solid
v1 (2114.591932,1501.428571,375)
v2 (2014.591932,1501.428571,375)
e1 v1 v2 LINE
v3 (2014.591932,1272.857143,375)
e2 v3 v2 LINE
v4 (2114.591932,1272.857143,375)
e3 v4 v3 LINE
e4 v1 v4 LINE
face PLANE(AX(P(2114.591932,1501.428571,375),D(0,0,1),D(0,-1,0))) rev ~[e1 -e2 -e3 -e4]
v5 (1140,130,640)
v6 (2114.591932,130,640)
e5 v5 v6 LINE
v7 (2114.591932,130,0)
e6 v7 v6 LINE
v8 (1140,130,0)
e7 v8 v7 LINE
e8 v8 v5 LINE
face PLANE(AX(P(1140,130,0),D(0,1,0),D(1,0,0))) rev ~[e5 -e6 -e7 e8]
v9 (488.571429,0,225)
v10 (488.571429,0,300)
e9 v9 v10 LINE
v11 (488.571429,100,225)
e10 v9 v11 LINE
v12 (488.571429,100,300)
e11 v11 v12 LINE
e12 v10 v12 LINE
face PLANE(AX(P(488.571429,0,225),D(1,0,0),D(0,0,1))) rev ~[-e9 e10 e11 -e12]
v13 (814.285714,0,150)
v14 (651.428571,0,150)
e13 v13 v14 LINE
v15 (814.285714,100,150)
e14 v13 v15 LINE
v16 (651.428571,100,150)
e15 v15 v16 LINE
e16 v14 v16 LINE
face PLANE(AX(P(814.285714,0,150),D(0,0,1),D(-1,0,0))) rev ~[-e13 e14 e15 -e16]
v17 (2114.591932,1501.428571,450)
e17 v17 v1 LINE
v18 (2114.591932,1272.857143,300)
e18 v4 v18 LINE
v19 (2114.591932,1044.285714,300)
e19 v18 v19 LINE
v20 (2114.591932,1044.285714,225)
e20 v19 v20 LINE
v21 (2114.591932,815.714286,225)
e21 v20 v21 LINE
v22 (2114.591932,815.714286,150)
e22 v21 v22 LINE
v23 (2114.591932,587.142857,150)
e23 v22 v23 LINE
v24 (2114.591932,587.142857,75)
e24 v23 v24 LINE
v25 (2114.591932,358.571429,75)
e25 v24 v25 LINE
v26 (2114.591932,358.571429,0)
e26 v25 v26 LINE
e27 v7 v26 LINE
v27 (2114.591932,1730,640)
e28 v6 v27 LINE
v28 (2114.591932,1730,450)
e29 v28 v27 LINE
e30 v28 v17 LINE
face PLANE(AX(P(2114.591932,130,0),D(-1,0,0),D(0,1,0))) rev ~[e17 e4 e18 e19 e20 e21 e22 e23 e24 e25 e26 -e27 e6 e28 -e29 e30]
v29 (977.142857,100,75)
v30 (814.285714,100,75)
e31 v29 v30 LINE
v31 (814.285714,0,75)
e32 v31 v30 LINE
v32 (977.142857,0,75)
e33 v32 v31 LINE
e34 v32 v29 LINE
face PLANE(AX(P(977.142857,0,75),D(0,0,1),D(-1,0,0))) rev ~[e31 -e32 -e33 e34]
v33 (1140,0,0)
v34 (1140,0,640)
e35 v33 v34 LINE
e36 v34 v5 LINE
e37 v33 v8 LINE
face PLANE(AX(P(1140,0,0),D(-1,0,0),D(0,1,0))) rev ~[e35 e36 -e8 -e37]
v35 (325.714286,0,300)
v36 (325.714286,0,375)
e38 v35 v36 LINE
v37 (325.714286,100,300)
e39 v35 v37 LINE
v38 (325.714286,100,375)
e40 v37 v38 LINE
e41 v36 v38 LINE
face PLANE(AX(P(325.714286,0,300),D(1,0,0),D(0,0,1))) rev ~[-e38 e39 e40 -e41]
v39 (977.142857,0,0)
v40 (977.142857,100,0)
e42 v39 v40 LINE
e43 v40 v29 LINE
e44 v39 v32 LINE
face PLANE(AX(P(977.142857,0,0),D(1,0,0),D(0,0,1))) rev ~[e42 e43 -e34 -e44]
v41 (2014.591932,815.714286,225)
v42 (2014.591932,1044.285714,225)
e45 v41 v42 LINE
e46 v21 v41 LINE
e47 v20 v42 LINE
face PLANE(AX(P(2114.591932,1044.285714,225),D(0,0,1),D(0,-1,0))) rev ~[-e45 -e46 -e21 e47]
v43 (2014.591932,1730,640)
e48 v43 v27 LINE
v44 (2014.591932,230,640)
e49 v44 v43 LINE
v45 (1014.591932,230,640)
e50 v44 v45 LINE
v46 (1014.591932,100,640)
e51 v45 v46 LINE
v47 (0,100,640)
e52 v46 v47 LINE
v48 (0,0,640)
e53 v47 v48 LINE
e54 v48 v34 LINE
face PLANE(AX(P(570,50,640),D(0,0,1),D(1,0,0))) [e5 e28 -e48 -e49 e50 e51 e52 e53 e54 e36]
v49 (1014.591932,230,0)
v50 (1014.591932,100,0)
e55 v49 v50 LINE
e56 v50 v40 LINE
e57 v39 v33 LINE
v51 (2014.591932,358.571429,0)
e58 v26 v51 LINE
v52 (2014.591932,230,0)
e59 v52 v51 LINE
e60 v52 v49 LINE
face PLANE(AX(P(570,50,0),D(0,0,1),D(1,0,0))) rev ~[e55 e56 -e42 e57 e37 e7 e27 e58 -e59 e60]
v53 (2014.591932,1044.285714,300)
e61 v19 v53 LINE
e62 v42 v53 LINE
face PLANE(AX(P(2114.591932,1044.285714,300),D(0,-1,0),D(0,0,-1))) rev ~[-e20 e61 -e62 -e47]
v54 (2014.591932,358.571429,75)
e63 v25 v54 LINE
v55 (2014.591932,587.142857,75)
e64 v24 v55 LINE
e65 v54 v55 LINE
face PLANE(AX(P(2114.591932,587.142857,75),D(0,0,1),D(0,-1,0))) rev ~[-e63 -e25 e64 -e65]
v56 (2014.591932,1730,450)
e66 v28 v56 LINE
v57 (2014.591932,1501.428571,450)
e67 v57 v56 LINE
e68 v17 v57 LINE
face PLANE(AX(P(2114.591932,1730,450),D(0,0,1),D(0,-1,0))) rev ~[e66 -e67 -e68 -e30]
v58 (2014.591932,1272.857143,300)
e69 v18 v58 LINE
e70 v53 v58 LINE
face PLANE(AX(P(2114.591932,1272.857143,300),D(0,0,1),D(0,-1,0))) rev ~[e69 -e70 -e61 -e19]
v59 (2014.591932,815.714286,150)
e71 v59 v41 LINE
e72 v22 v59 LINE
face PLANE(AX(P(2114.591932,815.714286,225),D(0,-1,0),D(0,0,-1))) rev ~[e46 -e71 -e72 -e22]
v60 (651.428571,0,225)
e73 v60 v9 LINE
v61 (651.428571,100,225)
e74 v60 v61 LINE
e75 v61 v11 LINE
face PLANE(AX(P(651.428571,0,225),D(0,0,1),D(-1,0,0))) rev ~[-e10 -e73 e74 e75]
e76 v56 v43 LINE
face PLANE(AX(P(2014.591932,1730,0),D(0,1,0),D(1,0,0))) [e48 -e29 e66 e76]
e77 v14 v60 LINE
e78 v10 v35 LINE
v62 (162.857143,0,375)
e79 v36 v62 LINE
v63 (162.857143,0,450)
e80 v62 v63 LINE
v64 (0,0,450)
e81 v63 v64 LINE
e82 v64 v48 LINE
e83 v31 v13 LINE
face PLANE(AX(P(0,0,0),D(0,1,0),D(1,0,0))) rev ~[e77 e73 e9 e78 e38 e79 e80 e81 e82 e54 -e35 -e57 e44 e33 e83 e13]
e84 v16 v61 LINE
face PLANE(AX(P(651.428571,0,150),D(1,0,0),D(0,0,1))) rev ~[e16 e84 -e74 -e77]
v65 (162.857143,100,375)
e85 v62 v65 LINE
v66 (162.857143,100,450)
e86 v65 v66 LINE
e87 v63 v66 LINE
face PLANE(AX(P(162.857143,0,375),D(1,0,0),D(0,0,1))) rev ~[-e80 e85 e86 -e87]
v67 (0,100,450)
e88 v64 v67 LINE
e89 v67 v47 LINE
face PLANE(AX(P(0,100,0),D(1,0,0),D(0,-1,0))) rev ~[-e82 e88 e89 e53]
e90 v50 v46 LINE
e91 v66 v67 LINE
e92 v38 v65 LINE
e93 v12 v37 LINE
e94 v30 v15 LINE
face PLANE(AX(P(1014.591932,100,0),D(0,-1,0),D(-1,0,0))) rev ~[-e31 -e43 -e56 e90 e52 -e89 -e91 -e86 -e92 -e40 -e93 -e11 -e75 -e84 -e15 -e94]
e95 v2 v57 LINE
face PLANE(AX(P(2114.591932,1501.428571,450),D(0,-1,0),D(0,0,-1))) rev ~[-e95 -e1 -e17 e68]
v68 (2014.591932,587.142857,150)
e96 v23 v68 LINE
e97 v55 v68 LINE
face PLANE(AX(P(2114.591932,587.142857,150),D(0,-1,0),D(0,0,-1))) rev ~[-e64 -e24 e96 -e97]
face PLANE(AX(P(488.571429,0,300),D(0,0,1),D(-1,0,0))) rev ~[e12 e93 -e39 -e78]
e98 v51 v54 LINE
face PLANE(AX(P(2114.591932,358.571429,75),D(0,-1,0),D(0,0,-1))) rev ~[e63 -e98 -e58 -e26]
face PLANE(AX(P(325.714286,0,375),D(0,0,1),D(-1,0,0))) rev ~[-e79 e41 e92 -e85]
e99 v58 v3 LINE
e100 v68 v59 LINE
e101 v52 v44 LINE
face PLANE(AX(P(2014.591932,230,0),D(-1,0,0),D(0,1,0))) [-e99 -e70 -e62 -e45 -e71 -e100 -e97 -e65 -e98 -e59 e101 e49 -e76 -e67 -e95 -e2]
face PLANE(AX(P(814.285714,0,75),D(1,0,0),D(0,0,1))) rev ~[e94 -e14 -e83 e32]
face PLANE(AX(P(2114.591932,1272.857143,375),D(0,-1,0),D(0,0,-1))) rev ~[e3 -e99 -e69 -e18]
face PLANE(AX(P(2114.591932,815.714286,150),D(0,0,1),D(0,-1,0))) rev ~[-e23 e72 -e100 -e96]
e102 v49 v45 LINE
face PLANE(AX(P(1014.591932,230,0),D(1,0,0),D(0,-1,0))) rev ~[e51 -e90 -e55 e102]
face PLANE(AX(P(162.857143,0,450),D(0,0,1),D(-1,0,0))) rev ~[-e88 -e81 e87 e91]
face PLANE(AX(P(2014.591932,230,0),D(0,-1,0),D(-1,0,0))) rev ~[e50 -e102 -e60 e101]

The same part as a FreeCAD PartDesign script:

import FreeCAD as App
import Part
import Sketcher
Q = App.Units.Quantity

doc = App.newDocument("Part")
body = doc.addObject("PartDesign::Body", "Body")

sketch1 = body.newObject("Sketcher::SketchObject", "Sketch")
sketch1.AttachmentSupport = (doc.getObject("XY_Plane"), [""])
sketch1.MapMode = "FlatFace"
sketch1.addGeometry(Part.LineSegment(App.Vector(0, 100, 0), App.Vector(0, 0, 0)), False)
sketch1.addGeometry(Part.LineSegment(App.Vector(0, 0, 0), App.Vector(1140, 0, 0)), False)
sketch1.addGeometry(Part.LineSegment(App.Vector(1140, 0, 0), App.Vector(1140, 130, 0)), False)
sketch1.addGeometry(Part.LineSegment(App.Vector(1140, 130, 0), App.Vector(2114.591932, 130, 0)), False)
sketch1.addGeometry(Part.LineSegment(App.Vector(2114.591932, 130, 0), App.Vector(2114.591932, 1730, 0)), False)
sketch1.addGeometry(Part.LineSegment(App.Vector(2114.591932, 1730, 0), App.Vector(2014.591932, 1730, 0)), False)
sketch1.addGeometry(Part.LineSegment(App.Vector(2014.591932, 1730, 0), App.Vector(2014.591932, 230, 0)), False)
sketch1.addGeometry(Part.LineSegment(App.Vector(2014.591932, 230, 0), App.Vector(1014.591932, 230, 0)), False)
sketch1.addGeometry(Part.LineSegment(App.Vector(1014.591932, 230, 0), App.Vector(1014.591932, 100, 0)), False)
sketch1.addGeometry(Part.LineSegment(App.Vector(1014.591932, 100, 0), App.Vector(0, 100, 0)), False)
sketch1.addConstraint(Sketcher.Constraint("Coincident", 0, 2, 1, 1))
sketch1.addConstraint(Sketcher.Constraint("Coincident", 1, 2, 2, 1))
sketch1.addConstraint(Sketcher.Constraint("Coincident", 2, 2, 3, 1))
sketch1.addConstraint(Sketcher.Constraint("Coincident", 3, 2, 4, 1))
sketch1.addConstraint(Sketcher.Constraint("Coincident", 4, 2, 5, 1))
sketch1.addConstraint(Sketcher.Constraint("Coincident", 5, 2, 6, 1))
sketch1.addConstraint(Sketcher.Constraint("Coincident", 6, 2, 7, 1))
sketch1.addConstraint(Sketcher.Constraint("Coincident", 7, 2, 8, 1))
sketch1.addConstraint(Sketcher.Constraint("Coincident", 8, 2, 9, 1))
sketch1.addConstraint(Sketcher.Constraint("Coincident", 9, 2, 0, 1))
sketch1.addConstraint(Sketcher.Constraint("Vertical", 0))
sketch1.addConstraint(Sketcher.Constraint("Horizontal", 1))
sketch1.addConstraint(Sketcher.Constraint("Vertical", 2))
sketch1.addConstraint(Sketcher.Constraint("Horizontal", 3))
sketch1.addConstraint(Sketcher.Constraint("Vertical", 4))
sketch1.addConstraint(Sketcher.Constraint("Horizontal", 5))
sketch1.addConstraint(Sketcher.Constraint("Vertical", 6))
sketch1.addConstraint(Sketcher.Constraint("Horizontal", 7))
sketch1.addConstraint(Sketcher.Constraint("Vertical", 8))
sketch1.addConstraint(Sketcher.Constraint("Horizontal", 9))
sketch1.addConstraint(Sketcher.Constraint("Coincident", 0, 2, -1, 1))
sketch1.addConstraint(Sketcher.Constraint("Equal", 5, 0))
sketch1.addConstraint(Sketcher.Constraint("Equal", 2, 8))
sketch1.addConstraint(Sketcher.Constraint("DistanceX", 1, 1, 1, 2, Q("1140 mm")))
sketch1.addConstraint(Sketcher.Constraint("DistanceX", 5, 2, 5, 1, Q("100 mm")))
sketch1.addConstraint(Sketcher.Constraint("DistanceX", 7, 2, 7, 1, Q("1000 mm")))
sketch1.addConstraint(Sketcher.Constraint("DistanceY", 2, 1, 2, 2, Q("130 mm")))
sketch1.addConstraint(Sketcher.Constraint("DistanceY", 4, 1, 4, 2, Q("1600 mm")))
sketch1.addConstraint(Sketcher.Constraint("DistanceX", 3, 1, 3, 2, Q("974.591932 mm")))
pad1 = body.newObject("PartDesign::Pad", "Pad")
pad1.Profile = sketch1
pad1.Length = 640

sketch2 = body.newObject("Sketcher::SketchObject", "Sketch001")
sketch2.AttachmentSupport = (doc.getObject("XZ_Plane"), [""])
sketch2.MapMode = "FlatFace"
sketch2.addGeometry(Part.LineSegment(App.Vector(162.857143, 450, 0), App.Vector(0, 450, 0)), False)
sketch2.addGeometry(Part.LineSegment(App.Vector(0, 450, 0), App.Vector(0, 0, 0)), False)
sketch2.addGeometry(Part.LineSegment(App.Vector(0, 0, 0), App.Vector(977.142857, 0, 0)), False)
sketch2.addGeometry(Part.LineSegment(App.Vector(977.142857, 0, 0), App.Vector(977.142857, 75, 0)), False)
sketch2.addGeometry(Part.LineSegment(App.Vector(977.142857, 75, 0), App.Vector(814.285714, 75, 0)), False)
sketch2.addGeometry(Part.LineSegment(App.Vector(814.285714, 75, 0), App.Vector(814.285714, 150, 0)), False)
sketch2.addGeometry(Part.LineSegment(App.Vector(814.285714, 150, 0), App.Vector(651.428571, 150, 0)), False)
sketch2.addGeometry(Part.LineSegment(App.Vector(651.428571, 150, 0), App.Vector(651.428571, 225, 0)), False)
sketch2.addGeometry(Part.LineSegment(App.Vector(651.428571, 225, 0), App.Vector(488.571429, 225, 0)), False)
sketch2.addGeometry(Part.LineSegment(App.Vector(488.571429, 225, 0), App.Vector(488.571429, 300, 0)), False)
sketch2.addGeometry(Part.LineSegment(App.Vector(488.571429, 300, 0), App.Vector(325.714286, 300, 0)), False)
sketch2.addGeometry(Part.LineSegment(App.Vector(325.714286, 300, 0), App.Vector(325.714286, 375, 0)), False)
sketch2.addGeometry(Part.LineSegment(App.Vector(325.714286, 375, 0), App.Vector(162.857143, 375, 0)), False)
sketch2.addGeometry(Part.LineSegment(App.Vector(162.857143, 375, 0), App.Vector(162.857143, 450, 0)), False)
sketch2.addConstraint(Sketcher.Constraint("Coincident", 0, 2, 1, 1))
sketch2.addConstraint(Sketcher.Constraint("Coincident", 1, 2, 2, 1))
sketch2.addConstraint(Sketcher.Constraint("Coincident", 2, 2, 3, 1))
sketch2.addConstraint(Sketcher.Constraint("Coincident", 3, 2, 4, 1))
sketch2.addConstraint(Sketcher.Constraint("Coincident", 4, 2, 5, 1))
sketch2.addConstraint(Sketcher.Constraint("Coincident", 5, 2, 6, 1))
sketch2.addConstraint(Sketcher.Constraint("Coincident", 6, 2, 7, 1))
sketch2.addConstraint(Sketcher.Constraint("Coincident", 7, 2, 8, 1))
sketch2.addConstraint(Sketcher.Constraint("Coincident", 8, 2, 9, 1))
sketch2.addConstraint(Sketcher.Constraint("Coincident", 9, 2, 10, 1))
sketch2.addConstraint(Sketcher.Constraint("Coincident", 10, 2, 11, 1))
sketch2.addConstraint(Sketcher.Constraint("Coincident", 11, 2, 12, 1))
sketch2.addConstraint(Sketcher.Constraint("Coincident", 12, 2, 13, 1))
sketch2.addConstraint(Sketcher.Constraint("Coincident", 13, 2, 0, 1))
sketch2.addConstraint(Sketcher.Constraint("Horizontal", 0))
sketch2.addConstraint(Sketcher.Constraint("Vertical", 1))
sketch2.addConstraint(Sketcher.Constraint("Horizontal", 2))
sketch2.addConstraint(Sketcher.Constraint("Vertical", 3))
sketch2.addConstraint(Sketcher.Constraint("Horizontal", 4))
sketch2.addConstraint(Sketcher.Constraint("Vertical", 5))
sketch2.addConstraint(Sketcher.Constraint("Horizontal", 6))
sketch2.addConstraint(Sketcher.Constraint("Vertical", 7))
sketch2.addConstraint(Sketcher.Constraint("Horizontal", 8))
sketch2.addConstraint(Sketcher.Constraint("Vertical", 9))
sketch2.addConstraint(Sketcher.Constraint("Horizontal", 10))
sketch2.addConstraint(Sketcher.Constraint("Vertical", 11))
sketch2.addConstraint(Sketcher.Constraint("Horizontal", 12))
sketch2.addConstraint(Sketcher.Constraint("Vertical", 13))
sketch2.addConstraint(Sketcher.Constraint("Coincident", 1, 2, -1, 1))
sketch2.addConstraint(Sketcher.Constraint("Equal", 0, 4))
sketch2.addConstraint(Sketcher.Constraint("Equal", 4, 6))
sketch2.addConstraint(Sketcher.Constraint("Equal", 6, 8))
sketch2.addConstraint(Sketcher.Constraint("Equal", 8, 10))
sketch2.addConstraint(Sketcher.Constraint("Equal", 10, 12))
sketch2.addConstraint(Sketcher.Constraint("Equal", 3, 5))
sketch2.addConstraint(Sketcher.Constraint("Equal", 5, 7))
sketch2.addConstraint(Sketcher.Constraint("Equal", 7, 9))
sketch2.addConstraint(Sketcher.Constraint("Equal", 9, 11))
sketch2.addConstraint(Sketcher.Constraint("Equal", 11, 13))
sketch2.addConstraint(Sketcher.Constraint("DistanceY", 1, 2, 1, 1, Q("450 mm")))
sketch2.addConstraint(Sketcher.Constraint("DistanceX", 0, 2, 0, 1, Q("162.857143 mm")))
pocket1 = body.newObject("PartDesign::Pocket", "Pocket")
pocket1.Profile = sketch2
pocket1.Type = "ThroughAll"

sketch3 = body.newObject("Sketcher::SketchObject", "Sketch002")
sketch3.AttachmentSupport = (doc.getObject("YZ_Plane"), [""])
sketch3.MapMode = "FlatFace"
sketch3.AttachmentOffset = App.Placement(App.Vector(0, 0, 2114.591932), App.Rotation())
sketch3.addGeometry(Part.LineSegment(App.Vector(1272.857143, 375, 0), App.Vector(1272.857143, 300, 0)), False)
sketch3.addGeometry(Part.LineSegment(App.Vector(1272.857143, 300, 0), App.Vector(1044.285714, 300, 0)), False)
sketch3.addGeometry(Part.LineSegment(App.Vector(1044.285714, 300, 0), App.Vector(1044.285714, 225, 0)), False)
sketch3.addGeometry(Part.LineSegment(App.Vector(1044.285714, 225, 0), App.Vector(815.714286, 225, 0)), False)
sketch3.addGeometry(Part.LineSegment(App.Vector(815.714286, 225, 0), App.Vector(815.714286, 150, 0)), False)
sketch3.addGeometry(Part.LineSegment(App.Vector(815.714286, 150, 0), App.Vector(587.142857, 150, 0)), False)
sketch3.addGeometry(Part.LineSegment(App.Vector(587.142857, 150, 0), App.Vector(587.142857, 75, 0)), False)
sketch3.addGeometry(Part.LineSegment(App.Vector(587.142857, 75, 0), App.Vector(358.571429, 75, 0)), False)
sketch3.addGeometry(Part.LineSegment(App.Vector(358.571429, 75, 0), App.Vector(358.571429, 0, 0)), False)
sketch3.addGeometry(Part.LineSegment(App.Vector(358.571429, 0, 0), App.Vector(1730, 0, 0)), False)
sketch3.addGeometry(Part.LineSegment(App.Vector(1730, 0, 0), App.Vector(1730, 450, 0)), False)
sketch3.addGeometry(Part.LineSegment(App.Vector(1730, 450, 0), App.Vector(1501.428571, 450, 0)), False)
sketch3.addGeometry(Part.LineSegment(App.Vector(1501.428571, 450, 0), App.Vector(1501.428571, 375, 0)), False)
sketch3.addGeometry(Part.LineSegment(App.Vector(1501.428571, 375, 0), App.Vector(1272.857143, 375, 0)), False)
sketch3.addConstraint(Sketcher.Constraint("Coincident", 0, 2, 1, 1))
sketch3.addConstraint(Sketcher.Constraint("Coincident", 1, 2, 2, 1))
sketch3.addConstraint(Sketcher.Constraint("Coincident", 2, 2, 3, 1))
sketch3.addConstraint(Sketcher.Constraint("Coincident", 3, 2, 4, 1))
sketch3.addConstraint(Sketcher.Constraint("Coincident", 4, 2, 5, 1))
sketch3.addConstraint(Sketcher.Constraint("Coincident", 5, 2, 6, 1))
sketch3.addConstraint(Sketcher.Constraint("Coincident", 6, 2, 7, 1))
sketch3.addConstraint(Sketcher.Constraint("Coincident", 7, 2, 8, 1))
sketch3.addConstraint(Sketcher.Constraint("Coincident", 8, 2, 9, 1))
sketch3.addConstraint(Sketcher.Constraint("Coincident", 9, 2, 10, 1))
sketch3.addConstraint(Sketcher.Constraint("Coincident", 10, 2, 11, 1))
sketch3.addConstraint(Sketcher.Constraint("Coincident", 11, 2, 12, 1))
sketch3.addConstraint(Sketcher.Constraint("Coincident", 12, 2, 13, 1))
sketch3.addConstraint(Sketcher.Constraint("Coincident", 13, 2, 0, 1))
sketch3.addConstraint(Sketcher.Constraint("Vertical", 0))
sketch3.addConstraint(Sketcher.Constraint("Horizontal", 1))
sketch3.addConstraint(Sketcher.Constraint("Vertical", 2))
sketch3.addConstraint(Sketcher.Constraint("Horizontal", 3))
sketch3.addConstraint(Sketcher.Constraint("Vertical", 4))
sketch3.addConstraint(Sketcher.Constraint("Horizontal", 5))
sketch3.addConstraint(Sketcher.Constraint("Vertical", 6))
sketch3.addConstraint(Sketcher.Constraint("Horizontal", 7))
sketch3.addConstraint(Sketcher.Constraint("Vertical", 8))
sketch3.addConstraint(Sketcher.Constraint("Horizontal", 9))
sketch3.addConstraint(Sketcher.Constraint("Vertical", 10))
sketch3.addConstraint(Sketcher.Constraint("Horizontal", 11))
sketch3.addConstraint(Sketcher.Constraint("Vertical", 12))
sketch3.addConstraint(Sketcher.Constraint("Horizontal", 13))
sketch3.addConstraint(Sketcher.Constraint("PointOnObject", 8, 2, -1))
sketch3.addConstraint(Sketcher.Constraint("Equal", 1, 3))
sketch3.addConstraint(Sketcher.Constraint("Equal", 3, 5))
sketch3.addConstraint(Sketcher.Constraint("Equal", 5, 7))
sketch3.addConstraint(Sketcher.Constraint("Equal", 7, 11))
sketch3.addConstraint(Sketcher.Constraint("Equal", 11, 13))
sketch3.addConstraint(Sketcher.Constraint("Equal", 0, 2))
sketch3.addConstraint(Sketcher.Constraint("Equal", 2, 4))
sketch3.addConstraint(Sketcher.Constraint("Equal", 4, 6))
sketch3.addConstraint(Sketcher.Constraint("Equal", 6, 8))
sketch3.addConstraint(Sketcher.Constraint("Equal", 8, 12))
sketch3.addConstraint(Sketcher.Constraint("DistanceY", 0, 2, 0, 1, Q("75 mm")))
sketch3.addConstraint(Sketcher.Constraint("DistanceX", -1, 1, 9, 2, Q("1730 mm")))
sketch3.addConstraint(Sketcher.Constraint("DistanceX", 1, 2, 1, 1, Q("228.571429 mm")))
pocket2 = body.newObject("PartDesign::Pocket", "Pocket001")
pocket2.Profile = sketch3
pocket2.Type = "ThroughAll"

doc.recompute()
